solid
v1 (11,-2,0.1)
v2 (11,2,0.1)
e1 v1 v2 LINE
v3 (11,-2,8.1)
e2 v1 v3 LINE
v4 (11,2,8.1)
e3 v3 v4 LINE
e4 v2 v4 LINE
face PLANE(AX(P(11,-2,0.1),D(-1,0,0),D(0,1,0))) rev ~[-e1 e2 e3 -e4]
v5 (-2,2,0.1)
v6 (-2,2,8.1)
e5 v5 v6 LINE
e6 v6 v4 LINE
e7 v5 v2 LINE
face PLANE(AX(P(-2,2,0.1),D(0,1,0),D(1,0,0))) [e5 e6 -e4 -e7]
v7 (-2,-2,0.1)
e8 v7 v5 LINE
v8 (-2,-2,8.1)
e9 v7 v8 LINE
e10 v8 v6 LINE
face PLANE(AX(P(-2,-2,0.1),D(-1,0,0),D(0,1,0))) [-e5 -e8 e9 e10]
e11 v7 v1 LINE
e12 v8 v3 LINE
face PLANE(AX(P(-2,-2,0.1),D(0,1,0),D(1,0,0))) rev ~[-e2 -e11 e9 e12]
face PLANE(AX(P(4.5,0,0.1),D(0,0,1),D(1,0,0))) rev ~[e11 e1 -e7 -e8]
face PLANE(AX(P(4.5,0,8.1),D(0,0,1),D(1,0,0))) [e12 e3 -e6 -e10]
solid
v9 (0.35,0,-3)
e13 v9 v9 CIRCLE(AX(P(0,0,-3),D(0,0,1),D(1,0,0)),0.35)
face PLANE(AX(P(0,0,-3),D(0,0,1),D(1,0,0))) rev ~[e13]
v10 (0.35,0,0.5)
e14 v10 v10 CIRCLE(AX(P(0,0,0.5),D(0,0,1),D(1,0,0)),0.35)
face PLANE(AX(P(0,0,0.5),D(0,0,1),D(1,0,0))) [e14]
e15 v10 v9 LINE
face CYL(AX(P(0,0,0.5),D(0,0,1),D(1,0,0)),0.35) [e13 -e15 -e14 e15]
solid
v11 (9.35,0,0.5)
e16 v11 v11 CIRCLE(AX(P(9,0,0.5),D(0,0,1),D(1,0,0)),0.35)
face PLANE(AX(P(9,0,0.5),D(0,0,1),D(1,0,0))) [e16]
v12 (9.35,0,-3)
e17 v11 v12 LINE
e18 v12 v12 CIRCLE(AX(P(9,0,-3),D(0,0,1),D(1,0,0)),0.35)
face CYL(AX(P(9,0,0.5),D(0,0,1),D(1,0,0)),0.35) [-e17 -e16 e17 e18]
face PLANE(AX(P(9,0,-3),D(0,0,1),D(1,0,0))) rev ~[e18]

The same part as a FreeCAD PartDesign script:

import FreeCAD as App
import Part
import Sketcher
from FreeCAD import Vector
Q = App.Units.Quantity

doc = App.newDocument("Part")
body = doc.addObject("PartDesign::Body", "Body")

sketch1 = body.newObject("Sketcher::SketchObject", "Sketch")
sketch1.AttachmentSupport = (doc.getObject("XY_Plane"), [""])
sketch1.MapMode = "FlatFace"
sketch1.AttachmentOffset = App.Placement(Vector(0, 0, 0.1), App.Rotation())
sketch1.addGeometry([
    Part.LineSegment(Vector(-2, 2, 0), Vector(-2, -2, 0)),
    Part.LineSegment(Vector(-2, -2, 0), Vector(11, -2, 0)),
    Part.LineSegment(Vector(11, -2, 0), Vector(11, 2, 0)),
    Part.LineSegment(Vector(11, 2, 0), Vector(-2, 2, 0)),
], False)
sketch1.addConstraint([
    Sketcher.Constraint("Coincident", 0, 2, 1, 1),
    Sketcher.Constraint("Coincident", 1, 2, 2, 1),
    Sketcher.Constraint("Coincident", 2, 2, 3, 1),
    Sketcher.Constraint("Coincident", 3, 2, 0, 1),
    Sketcher.Constraint("Vertical", 0),
    Sketcher.Constraint("Horizontal", 1),
    Sketcher.Constraint("Vertical", 2),
    Sketcher.Constraint("Horizontal", 3),
    Sketcher.Constraint("DistanceX", 1, 1, 1, 2, Q("13 mm")),
    Sketcher.Constraint("DistanceY", 0, 2, 0, 1, Q("4 mm")),
    Sketcher.Constraint("DistanceX", 0, 2, -1, 1, Q("2 mm")),
    Sketcher.Constraint("DistanceY", 0, 2, -1, 1, Q("2 mm")),
])
pad1 = body.newObject("PartDesign::Pad", "Pad")
pad1.Profile = sketch1
pad1.Length = 8
body2 = doc.addObject("PartDesign::Body", "Body001")
body2.AllowCompound = True

sketch2 = body2.newObject("Sketcher::SketchObject", "Sketch001")
sketch2.AttachmentSupport = (doc.getObject("XY_Plane001"), [""])
sketch2.MapMode = "FlatFace"
sketch2.AttachmentOffset = App.Placement(Vector(0, 0, 0.5), App.Rotation())
sketch2.addGeometry([
    Part.Circle(Vector(0, 0, 0), Vector(0, 0, 1), 0.35),
    Part.Circle(Vector(9, 0, 0), Vector(0, 0, 1), 0.35),
], False)
sketch2.addConstraint([
    Sketcher.Constraint("Coincident", 0, 3, -1, 1),
    Sketcher.Constraint("Equal", 0, 1),
    Sketcher.Constraint("PointOnObject", 1, 3, -1),
    Sketcher.Constraint("Diameter", 0, Q("0.7 mm")),
    Sketcher.Constraint("DistanceX", -1, 1, 1, 3, Q("9 mm")),
])
pad2 = body2.newObject("PartDesign::Pad", "Pad001")
pad2.Profile = sketch2
pad2.Length = 3.5
pad2.Reversed = True

doc.recompute()
